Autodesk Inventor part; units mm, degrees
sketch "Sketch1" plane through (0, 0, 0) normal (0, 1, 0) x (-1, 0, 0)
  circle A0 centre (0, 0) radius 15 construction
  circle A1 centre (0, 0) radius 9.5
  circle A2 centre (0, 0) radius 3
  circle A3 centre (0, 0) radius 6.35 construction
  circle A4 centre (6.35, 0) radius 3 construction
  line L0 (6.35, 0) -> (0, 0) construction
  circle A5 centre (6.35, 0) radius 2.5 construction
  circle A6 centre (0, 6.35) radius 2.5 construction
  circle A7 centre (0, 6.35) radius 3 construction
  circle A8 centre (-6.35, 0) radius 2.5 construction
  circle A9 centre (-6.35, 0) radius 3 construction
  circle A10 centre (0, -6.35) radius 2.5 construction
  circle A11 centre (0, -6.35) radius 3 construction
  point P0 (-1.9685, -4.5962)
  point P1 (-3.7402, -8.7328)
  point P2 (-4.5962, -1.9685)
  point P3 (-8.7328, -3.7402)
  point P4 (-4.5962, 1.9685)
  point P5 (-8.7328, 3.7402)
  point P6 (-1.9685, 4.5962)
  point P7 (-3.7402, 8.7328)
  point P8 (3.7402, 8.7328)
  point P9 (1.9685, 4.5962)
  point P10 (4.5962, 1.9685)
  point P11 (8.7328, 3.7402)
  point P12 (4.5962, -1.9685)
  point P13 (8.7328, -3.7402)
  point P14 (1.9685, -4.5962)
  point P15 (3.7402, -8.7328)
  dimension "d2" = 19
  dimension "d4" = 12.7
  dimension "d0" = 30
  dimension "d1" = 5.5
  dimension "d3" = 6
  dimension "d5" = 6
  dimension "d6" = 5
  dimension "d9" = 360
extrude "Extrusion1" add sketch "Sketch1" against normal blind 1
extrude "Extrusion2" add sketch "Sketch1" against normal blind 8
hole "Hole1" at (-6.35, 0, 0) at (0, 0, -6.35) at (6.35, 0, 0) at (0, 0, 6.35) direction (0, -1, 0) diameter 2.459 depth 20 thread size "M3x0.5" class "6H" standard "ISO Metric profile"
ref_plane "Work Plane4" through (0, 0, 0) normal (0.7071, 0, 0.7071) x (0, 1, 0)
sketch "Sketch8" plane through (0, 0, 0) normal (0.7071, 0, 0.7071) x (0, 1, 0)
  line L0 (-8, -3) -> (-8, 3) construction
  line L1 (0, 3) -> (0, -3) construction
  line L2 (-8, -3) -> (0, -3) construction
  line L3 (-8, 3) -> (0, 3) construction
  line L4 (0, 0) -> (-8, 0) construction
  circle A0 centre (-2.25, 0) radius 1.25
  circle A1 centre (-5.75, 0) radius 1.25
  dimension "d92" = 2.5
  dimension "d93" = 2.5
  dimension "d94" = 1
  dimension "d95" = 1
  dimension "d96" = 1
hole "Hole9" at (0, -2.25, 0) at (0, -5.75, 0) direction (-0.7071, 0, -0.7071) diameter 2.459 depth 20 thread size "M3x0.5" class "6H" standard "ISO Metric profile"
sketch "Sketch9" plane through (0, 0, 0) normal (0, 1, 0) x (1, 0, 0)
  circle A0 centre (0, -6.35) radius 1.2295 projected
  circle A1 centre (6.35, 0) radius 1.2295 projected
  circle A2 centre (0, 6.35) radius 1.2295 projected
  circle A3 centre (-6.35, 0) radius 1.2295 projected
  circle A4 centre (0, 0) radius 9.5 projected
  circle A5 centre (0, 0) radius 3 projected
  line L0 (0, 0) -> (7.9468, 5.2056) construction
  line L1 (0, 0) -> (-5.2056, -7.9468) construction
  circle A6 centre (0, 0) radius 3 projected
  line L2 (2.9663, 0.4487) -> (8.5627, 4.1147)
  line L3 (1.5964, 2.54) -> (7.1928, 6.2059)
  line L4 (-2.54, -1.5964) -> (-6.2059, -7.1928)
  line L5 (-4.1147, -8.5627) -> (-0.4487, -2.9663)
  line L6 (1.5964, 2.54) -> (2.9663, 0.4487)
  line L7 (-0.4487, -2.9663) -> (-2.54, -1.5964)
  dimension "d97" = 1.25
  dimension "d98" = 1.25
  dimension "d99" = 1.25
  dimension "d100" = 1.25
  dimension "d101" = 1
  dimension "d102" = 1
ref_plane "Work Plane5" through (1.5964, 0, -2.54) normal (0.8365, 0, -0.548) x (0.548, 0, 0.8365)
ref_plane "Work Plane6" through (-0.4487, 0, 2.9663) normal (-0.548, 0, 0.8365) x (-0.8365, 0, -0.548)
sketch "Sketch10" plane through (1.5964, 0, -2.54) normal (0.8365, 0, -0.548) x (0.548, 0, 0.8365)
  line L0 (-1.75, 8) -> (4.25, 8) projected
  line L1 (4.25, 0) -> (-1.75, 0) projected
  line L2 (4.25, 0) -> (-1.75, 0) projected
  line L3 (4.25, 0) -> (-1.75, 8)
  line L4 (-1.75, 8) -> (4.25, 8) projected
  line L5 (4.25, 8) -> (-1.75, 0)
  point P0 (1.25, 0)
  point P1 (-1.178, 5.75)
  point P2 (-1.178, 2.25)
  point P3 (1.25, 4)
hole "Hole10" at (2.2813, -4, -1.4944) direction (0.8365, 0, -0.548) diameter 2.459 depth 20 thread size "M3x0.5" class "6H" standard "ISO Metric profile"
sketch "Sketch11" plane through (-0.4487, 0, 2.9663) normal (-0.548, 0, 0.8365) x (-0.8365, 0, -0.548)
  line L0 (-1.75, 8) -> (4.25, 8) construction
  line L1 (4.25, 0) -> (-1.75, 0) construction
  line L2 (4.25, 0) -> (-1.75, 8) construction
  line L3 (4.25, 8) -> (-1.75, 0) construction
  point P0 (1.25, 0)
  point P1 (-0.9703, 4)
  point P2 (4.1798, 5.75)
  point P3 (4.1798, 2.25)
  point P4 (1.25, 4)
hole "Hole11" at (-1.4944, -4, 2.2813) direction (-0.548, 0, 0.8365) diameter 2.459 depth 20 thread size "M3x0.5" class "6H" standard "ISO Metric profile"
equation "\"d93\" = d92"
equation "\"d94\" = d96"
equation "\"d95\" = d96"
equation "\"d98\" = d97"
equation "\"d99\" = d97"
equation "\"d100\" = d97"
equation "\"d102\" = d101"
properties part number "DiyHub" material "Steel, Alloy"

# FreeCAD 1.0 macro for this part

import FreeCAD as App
import Part
import Sketcher
from FreeCAD import Vector
Q = App.Units.Quantity

doc = App.newDocument("Part")
body = doc.addObject("PartDesign::Body", "Body")

# Sketch on XZ plane
sketch1 = doc.addObject("Sketcher::SketchObject", "Sketch")
body.addObject(sketch1)
sketch1.AttachmentSupport = (doc.XZ_Plane, [""])
sketch1.MapMode = "FlatFace"
sketch1.addGeometry([
    Part.Circle(Vector(0, 0, 0), Vector(0, 0, 1), 9.5),
    Part.Circle(Vector(0, 0, 0), Vector(0, 0, 1), 3),
], False)
sketch1.addConstraint([
    Sketcher.Constraint("Coincident", 0, 3, -1, 1),
    Sketcher.Constraint("Coincident", 1, 3, -1, 1),
    Sketcher.Constraint("Diameter", 0, Q("19 mm")),
    Sketcher.Constraint("Diameter", 1, Q("6 mm")),
])
pad1 = doc.addObject("PartDesign::Pad", "Pad")
body.addObject(pad1)
pad1.Profile = sketch1
pad1.Length = 1

# Sketch on XZ plane
sketch2 = doc.addObject("Sketcher::SketchObject", "Sketch001")
body.addObject(sketch2)
sketch2.AttachmentSupport = (doc.XZ_Plane, [""])
sketch2.MapMode = "FlatFace"
sketch2.addGeometry([
    Part.Circle(Vector(0, 0, 0), Vector(0, 0, 1), 9.5),
    Part.Circle(Vector(0, 0, 0), Vector(0, 0, 1), 3),
], False)
sketch2.addConstraint([
    Sketcher.Constraint("Coincident", 0, 3, -1, 1),
    Sketcher.Constraint("Coincident", 1, 3, -1, 1),
    Sketcher.Constraint("Diameter", 0, Q("19 mm")),
    Sketcher.Constraint("Diameter", 1, Q("6 mm")),
])
pad2 = doc.addObject("PartDesign::Pad", "Pad001")
body.addObject(pad2)
pad2.Profile = sketch2
pad2.Length = 8

# Sketch on XZ plane
sketch3 = doc.addObject("Sketcher::SketchObject", "Sketch002")
body.addObject(sketch3)
sketch3.AttachmentSupport = (doc.XZ_Plane, [""])
sketch3.MapMode = "FlatFace"
sketch3.addGeometry([
    Part.Circle(Vector(-6.3, 0, 0), Vector(0, 0, 1), 1.2),
    Part.Circle(Vector(0, -6.3, 0), Vector(0, 0, 1), 1.2),
    Part.Circle(Vector(6.3, 0, 0), Vector(0, 0, 1), 1.2),
    Part.Circle(Vector(0, 6.3, 0), Vector(0, 0, 1), 1.2),
], False)
sketch3.addConstraint([
    Sketcher.Constraint("Equal", 0, 1),
    Sketcher.Constraint("Equal", 1, 2),
    Sketcher.Constraint("Equal", 2, 3),
    Sketcher.Constraint("Symmetric", 0, 3, 2, 3, -1, 1),
    Sketcher.Constraint("Symmetric", 1, 3, 3, 3, -1, 1),
    Sketcher.Constraint("PointOnObject", 0, 3, -1),
    Sketcher.Constraint("PointOnObject", 1, 3, -2),
    Sketcher.Constraint("Diameter", 0, Q("2.459 mm")),
    Sketcher.Constraint("DistanceX", 0, 3, 2, 3, Q("12.7 mm")),
    Sketcher.Constraint("DistanceY", 1, 3, 3, 3, Q("12.7 mm")),
])
doc.recompute()
hole = doc.addObject("PartDesign::Hole", "Hole")
body.addObject(hole)
hole.Profile = sketch3
hole.ThreadType = "None"
hole.Diameter = 2.459
hole.DepthType = "Dimension"
hole.Depth = 20
hole.DrillPoint = "Flat"
hole.Reversed = True

# Sketch on an angled plane
sketch4 = doc.addObject("Sketcher::SketchObject", "Sketch003")
body.addObject(sketch4)
sketch4.Placement = App.Placement(Vector(0, 0, 0), App.Rotation(Vector(0.707106781, 0, -0.707106781), Vector(0, 0.999999999, 0), Vector(0.707106781, 0, 0.707106781), "ZXY"))
sketch4.addGeometry([
    Part.Circle(Vector(0, -2.2, 0), Vector(0, 0, 1), 1.2),
    Part.Circle(Vector(0, -5.7, 0), Vector(0, 0, 1), 1.2),
], False)
sketch4.addConstraint([
    Sketcher.Constraint("Equal", 0, 1),
    Sketcher.Constraint("PointOnObject", 0, 3, -2),
    Sketcher.Constraint("PointOnObject", 1, 3, -2),
    Sketcher.Constraint("Diameter", 0, Q("2.459 mm")),
    Sketcher.Constraint("DistanceY", 1, 3, 0, 3, Q("3.5 mm")),
    Sketcher.Constraint("DistanceY", 0, 3, -1, 1, Q("2.25 mm")),
])
doc.recompute()
hole2 = doc.addObject("PartDesign::Hole", "Hole001")
body.addObject(hole2)
hole2.Profile = sketch4
hole2.ThreadType = "None"
hole2.Diameter = 2.459
hole2.DepthType = "Dimension"
hole2.Depth = 20
hole2.DrillPoint = "Flat"

# Sketch on an angled plane
sketch5 = doc.addObject("Sketcher::SketchObject", "Sketch004")
body.addObject(sketch5)
sketch5.Placement = App.Placement(Vector(2.281252, 0, -1.494473), App.Rotation(Vector(0.547990068, 0, 0.836484839), Vector(0, 1.000000001, 0), Vector(-0.836484839, 0, 0.547990068), "ZXY"))
sketch5.addGeometry(Part.Circle(Vector(0, -4, 0), Vector(0, 0, 1), 1.2), False)
sketch5.addConstraint([
    Sketcher.Constraint("PointOnObject", 0, 3, -2),
    Sketcher.Constraint("Diameter", 0, Q("2.459 mm")),
    Sketcher.Constraint("DistanceY", 0, 3, -1, 1, Q("4 mm")),
])
doc.recompute()
hole3 = doc.addObject("PartDesign::Hole", "Hole002")
body.addObject(hole3)
hole3.Profile = sketch5
hole3.ThreadType = "None"
hole3.Diameter = 2.459
hole3.DepthType = "Dimension"
hole3.Depth = 20
hole3.DrillPoint = "Flat"

# Sketch on an angled plane
sketch6 = doc.addObject("Sketcher::SketchObject", "Sketch005")
body.addObject(sketch6)
sketch6.Placement = App.Placement(Vector(-1.494473, 0, 2.281252), App.Rotation(Vector(-0.836484839, 0, -0.547990068), Vector(0, 1.000000001, 0), Vector(0.547990068, 0, -0.836484839), "ZXY"))
sketch6.addGeometry(Part.Circle(Vector(0, -4, 0), Vector(0, 0, 1), 1.2), False)
sketch6.addConstraint([
    Sketcher.Constraint("PointOnObject", 0, 3, -2),
    Sketcher.Constraint("Diameter", 0, Q("2.459 mm")),
    Sketcher.Constraint("DistanceY", 0, 3, -1, 1, Q("4 mm")),
])
doc.recompute()
hole4 = doc.addObject("PartDesign::Hole", "Hole003")
body.addObject(hole4)
hole4.Profile = sketch6
hole4.ThreadType = "None"
hole4.Diameter = 2.459
hole4.DepthType = "Dimension"
hole4.Depth = 20
hole4.DrillPoint = "Flat"

doc.recompute()
